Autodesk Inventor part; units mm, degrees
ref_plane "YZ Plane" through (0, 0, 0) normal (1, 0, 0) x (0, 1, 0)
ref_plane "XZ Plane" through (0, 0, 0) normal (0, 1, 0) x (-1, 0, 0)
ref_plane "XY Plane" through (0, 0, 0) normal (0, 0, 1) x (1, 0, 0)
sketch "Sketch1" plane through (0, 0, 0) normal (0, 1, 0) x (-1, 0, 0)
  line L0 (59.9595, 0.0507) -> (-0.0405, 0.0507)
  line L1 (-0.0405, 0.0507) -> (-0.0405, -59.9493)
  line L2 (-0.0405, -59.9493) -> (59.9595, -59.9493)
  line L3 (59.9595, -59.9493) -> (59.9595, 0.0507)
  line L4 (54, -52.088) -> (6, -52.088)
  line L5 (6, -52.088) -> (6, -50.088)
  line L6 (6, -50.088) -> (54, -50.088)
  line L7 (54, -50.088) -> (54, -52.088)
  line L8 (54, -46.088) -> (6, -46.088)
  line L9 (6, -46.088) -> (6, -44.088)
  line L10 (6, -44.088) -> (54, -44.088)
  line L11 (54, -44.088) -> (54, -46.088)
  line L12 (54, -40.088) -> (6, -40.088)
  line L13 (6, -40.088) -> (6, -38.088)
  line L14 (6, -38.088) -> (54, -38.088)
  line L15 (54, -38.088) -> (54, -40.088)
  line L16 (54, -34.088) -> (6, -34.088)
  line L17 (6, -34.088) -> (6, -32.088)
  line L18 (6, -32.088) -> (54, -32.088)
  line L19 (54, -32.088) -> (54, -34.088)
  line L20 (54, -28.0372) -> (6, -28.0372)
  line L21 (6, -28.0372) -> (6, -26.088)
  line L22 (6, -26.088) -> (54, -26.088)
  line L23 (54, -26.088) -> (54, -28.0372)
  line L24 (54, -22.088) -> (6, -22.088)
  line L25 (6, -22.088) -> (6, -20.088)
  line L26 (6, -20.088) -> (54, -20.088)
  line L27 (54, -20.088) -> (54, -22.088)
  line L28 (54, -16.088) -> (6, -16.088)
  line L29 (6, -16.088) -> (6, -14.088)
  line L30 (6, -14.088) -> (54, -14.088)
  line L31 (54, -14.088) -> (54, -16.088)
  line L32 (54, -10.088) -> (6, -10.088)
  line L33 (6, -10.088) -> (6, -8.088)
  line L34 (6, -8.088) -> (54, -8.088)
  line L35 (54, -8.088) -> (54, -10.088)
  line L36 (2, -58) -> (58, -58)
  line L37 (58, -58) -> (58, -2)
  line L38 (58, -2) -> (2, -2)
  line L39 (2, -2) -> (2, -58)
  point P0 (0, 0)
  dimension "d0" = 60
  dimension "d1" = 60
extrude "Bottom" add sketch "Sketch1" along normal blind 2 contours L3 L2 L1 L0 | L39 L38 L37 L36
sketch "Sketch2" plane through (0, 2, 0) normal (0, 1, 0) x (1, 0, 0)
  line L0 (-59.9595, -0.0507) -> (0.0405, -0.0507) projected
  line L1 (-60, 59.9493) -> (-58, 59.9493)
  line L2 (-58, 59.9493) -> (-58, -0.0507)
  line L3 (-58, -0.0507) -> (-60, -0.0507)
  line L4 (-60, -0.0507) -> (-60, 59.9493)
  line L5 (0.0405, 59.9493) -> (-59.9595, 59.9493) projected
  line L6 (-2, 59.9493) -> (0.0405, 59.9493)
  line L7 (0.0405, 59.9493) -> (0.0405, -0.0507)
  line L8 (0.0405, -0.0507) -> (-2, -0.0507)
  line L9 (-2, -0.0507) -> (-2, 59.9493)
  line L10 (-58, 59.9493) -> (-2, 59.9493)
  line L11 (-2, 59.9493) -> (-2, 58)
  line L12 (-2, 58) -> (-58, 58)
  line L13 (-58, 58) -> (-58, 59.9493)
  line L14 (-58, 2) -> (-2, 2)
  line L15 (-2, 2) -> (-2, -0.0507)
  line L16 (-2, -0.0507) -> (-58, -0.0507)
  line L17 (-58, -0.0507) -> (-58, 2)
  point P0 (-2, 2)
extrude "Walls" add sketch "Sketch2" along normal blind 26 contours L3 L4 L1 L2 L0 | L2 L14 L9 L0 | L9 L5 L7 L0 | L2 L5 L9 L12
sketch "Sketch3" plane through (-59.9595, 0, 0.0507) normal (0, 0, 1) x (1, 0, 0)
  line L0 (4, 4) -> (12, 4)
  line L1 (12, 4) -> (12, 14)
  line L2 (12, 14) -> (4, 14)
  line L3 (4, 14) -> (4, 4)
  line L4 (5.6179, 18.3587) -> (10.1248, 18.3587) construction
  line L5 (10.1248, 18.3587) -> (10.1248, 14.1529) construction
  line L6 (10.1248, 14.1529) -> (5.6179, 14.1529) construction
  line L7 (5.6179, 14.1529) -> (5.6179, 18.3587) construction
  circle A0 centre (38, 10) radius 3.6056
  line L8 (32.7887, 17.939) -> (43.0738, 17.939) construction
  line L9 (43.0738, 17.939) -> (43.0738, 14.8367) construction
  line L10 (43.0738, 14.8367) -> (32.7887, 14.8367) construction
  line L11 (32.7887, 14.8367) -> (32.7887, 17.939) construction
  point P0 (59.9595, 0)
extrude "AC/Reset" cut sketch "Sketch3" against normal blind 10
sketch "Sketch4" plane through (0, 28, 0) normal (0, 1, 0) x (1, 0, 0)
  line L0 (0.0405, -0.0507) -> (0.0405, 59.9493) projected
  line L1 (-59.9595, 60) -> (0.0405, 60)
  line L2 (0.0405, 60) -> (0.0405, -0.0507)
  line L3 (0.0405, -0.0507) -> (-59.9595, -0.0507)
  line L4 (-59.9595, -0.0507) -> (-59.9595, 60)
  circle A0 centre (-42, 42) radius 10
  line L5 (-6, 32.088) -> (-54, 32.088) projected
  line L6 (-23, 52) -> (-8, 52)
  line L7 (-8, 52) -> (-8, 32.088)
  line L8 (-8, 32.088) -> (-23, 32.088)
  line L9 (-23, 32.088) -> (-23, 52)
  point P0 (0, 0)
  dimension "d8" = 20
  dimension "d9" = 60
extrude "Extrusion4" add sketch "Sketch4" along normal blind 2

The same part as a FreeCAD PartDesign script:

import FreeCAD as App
import Part
import Sketcher
from FreeCAD import Vector
Q = App.Units.Quantity

doc = App.newDocument("Part")
body = doc.addObject("PartDesign::Body", "Body")

# Sketch on XZ plane
sketch1 = body.newObject("Sketcher::SketchObject", "Sketch")
sketch1.AttachmentSupport = (doc.getObject("XZ_Plane"), [""])
sketch1.MapMode = "FlatFace"
sketch1.addGeometry([
    Part.LineSegment(Vector(-60, -59.9, 0), Vector(-60, 0.1, 0)),  # 0
    Part.LineSegment(Vector(-60, 0.1, 0), Vector(0, 0.1, 0)),  # 1
    Part.LineSegment(Vector(0, 0.1, 0), Vector(0, -59.9, 0)),  # 2
    Part.LineSegment(Vector(0, -59.9, 0), Vector(-60, -59.9, 0)),  # 3
    Part.LineSegment(Vector(-54, -8.1, 0), Vector(-54, -10.1, 0)),  # 4
    Part.LineSegment(Vector(-54, -10.1, 0), Vector(-6, -10.1, 0)),  # 5
    Part.LineSegment(Vector(-6, -10.1, 0), Vector(-6, -8.1, 0)),  # 6
    Part.LineSegment(Vector(-6, -8.1, 0), Vector(-54, -8.1, 0)),  # 7
    Part.LineSegment(Vector(-54, -50.1, 0), Vector(-54, -52.1, 0)),  # 8
    Part.LineSegment(Vector(-54, -52.1, 0), Vector(-6, -52.1, 0)),  # 9
    Part.LineSegment(Vector(-6, -52.1, 0), Vector(-6, -50.1, 0)),  # 10
    Part.LineSegment(Vector(-6, -50.1, 0), Vector(-54, -50.1, 0)),  # 11
    Part.LineSegment(Vector(-54, -44.1, 0), Vector(-54, -46.1, 0)),  # 12
    Part.LineSegment(Vector(-54, -46.1, 0), Vector(-6, -46.1, 0)),  # 13
    Part.LineSegment(Vector(-6, -46.1, 0), Vector(-6, -44.1, 0)),  # 14
    Part.LineSegment(Vector(-6, -44.1, 0), Vector(-54, -44.1, 0)),  # 15
    Part.LineSegment(Vector(-54, -38.1, 0), Vector(-54, -40.1, 0)),  # 16
    Part.LineSegment(Vector(-54, -40.1, 0), Vector(-6, -40.1, 0)),  # 17
    Part.LineSegment(Vector(-6, -40.1, 0), Vector(-6, -38.1, 0)),  # 18
    Part.LineSegment(Vector(-6, -38.1, 0), Vector(-54, -38.1, 0)),  # 19
    Part.LineSegment(Vector(-54, -32.1, 0), Vector(-54, -34.1, 0)),  # 20
    Part.LineSegment(Vector(-54, -34.1, 0), Vector(-6, -34.1, 0)),  # 21
    Part.LineSegment(Vector(-6, -34.1, 0), Vector(-6, -32.1, 0)),  # 22
    Part.LineSegment(Vector(-6, -32.1, 0), Vector(-54, -32.1, 0)),  # 23
    Part.LineSegment(Vector(-54, -26.1, 0), Vector(-54, -28, 0)),  # 24
    Part.LineSegment(Vector(-54, -28, 0), Vector(-6, -28, 0)),  # 25
    Part.LineSegment(Vector(-6, -28, 0), Vector(-6, -26.1, 0)),  # 26
    Part.LineSegment(Vector(-6, -26.1, 0), Vector(-54, -26.1, 0)),  # 27
    Part.LineSegment(Vector(-54, -20.1, 0), Vector(-54, -22.1, 0)),  # 28
    Part.LineSegment(Vector(-54, -22.1, 0), Vector(-6, -22.1, 0)),  # 29
    Part.LineSegment(Vector(-6, -22.1, 0), Vector(-6, -20.1, 0)),  # 30
    Part.LineSegment(Vector(-6, -20.1, 0), Vector(-54, -20.1, 0)),  # 31
    Part.LineSegment(Vector(-54, -14.1, 0), Vector(-54, -16.1, 0)),  # 32
    Part.LineSegment(Vector(-54, -16.1, 0), Vector(-6, -16.1, 0)),  # 33
    Part.LineSegment(Vector(-6, -16.1, 0), Vector(-6, -14.1, 0)),  # 34
    Part.LineSegment(Vector(-6, -14.1, 0), Vector(-54, -14.1, 0)),  # 35
], False)
sketch1.addConstraint([
    Sketcher.Constraint("Coincident", 0, 2, 1, 1),
    Sketcher.Constraint("Coincident", 1, 2, 2, 1),
    Sketcher.Constraint("Coincident", 2, 2, 3, 1),
    Sketcher.Constraint("Coincident", 3, 2, 0, 1),
    Sketcher.Constraint("Coincident", 4, 2, 5, 1),
    Sketcher.Constraint("Coincident", 5, 2, 6, 1),
    Sketcher.Constraint("Coincident", 6, 2, 7, 1),
    Sketcher.Constraint("Coincident", 7, 2, 4, 1),
    Sketcher.Constraint("Coincident", 8, 2, 9, 1),
    Sketcher.Constraint("Coincident", 9, 2, 10, 1),
    Sketcher.Constraint("Coincident", 10, 2, 11, 1),
    Sketcher.Constraint("Coincident", 11, 2, 8, 1),
    Sketcher.Constraint("Coincident", 12, 2, 13, 1),
    Sketcher.Constraint("Coincident", 13, 2, 14, 1),
    Sketcher.Constraint("Coincident", 14, 2, 15, 1),
    Sketcher.Constraint("Coincident", 15, 2, 12, 1),
    Sketcher.Constraint("Coincident", 16, 2, 17, 1),
    Sketcher.Constraint("Coincident", 17, 2, 18, 1),
    Sketcher.Constraint("Coincident", 18, 2, 19, 1),
    Sketcher.Constraint("Coincident", 19, 2, 16, 1),
    Sketcher.Constraint("Coincident", 20, 2, 21, 1),
    Sketcher.Constraint("Coincident", 21, 2, 22, 1),
    Sketcher.Constraint("Coincident", 22, 2, 23, 1),
    Sketcher.Constraint("Coincident", 23, 2, 20, 1),
    Sketcher.Constraint("Coincident", 24, 2, 25, 1),
    Sketcher.Constraint("Coincident", 25, 2, 26, 1),
    Sketcher.Constraint("Coincident", 26, 2, 27, 1),
    Sketcher.Constraint("Coincident", 27, 2, 24, 1),
    Sketcher.Constraint("Coincident", 28, 2, 29, 1),
    Sketcher.Constraint("Coincident", 29, 2, 30, 1),
    Sketcher.Constraint("Coincident", 30, 2, 31, 1),
    Sketcher.Constraint("Coincident", 31, 2, 28, 1),
    Sketcher.Constraint("Coincident", 32, 2, 33, 1),
    Sketcher.Constraint("Coincident", 33, 2, 34, 1),
    Sketcher.Constraint("Coincident", 34, 2, 35, 1),
    Sketcher.Constraint("Coincident", 35, 2, 32, 1),
    Sketcher.Constraint("Vertical", 0),
    Sketcher.Constraint("Horizontal", 1),
    Sketcher.Constraint("Vertical", 2),
    Sketcher.Constraint("Horizontal", 3),
    Sketcher.Constraint("Vertical", 4),
    Sketcher.Constraint("Horizontal", 5),
    Sketcher.Constraint("Vertical", 6),
    Sketcher.Constraint("Horizontal", 7),
    Sketcher.Constraint("Vertical", 8),
    Sketcher.Constraint("Horizontal", 9),
    Sketcher.Constraint("Vertical", 10),
    Sketcher.Constraint("Horizontal", 11),
    Sketcher.Constraint("Vertical", 12),
    Sketcher.Constraint("Horizontal", 13),
    Sketcher.Constraint("Vertical", 14),
    Sketcher.Constraint("Horizontal", 15),
    Sketcher.Constraint("Vertical", 16),
    Sketcher.Constraint("Horizontal", 17),
    Sketcher.Constraint("Vertical", 18),
    Sketcher.Constraint("Horizontal", 19),
    Sketcher.Constraint("Vertical", 20),
    Sketcher.Constraint("Horizontal", 21),
    Sketcher.Constraint("Vertical", 22),
    Sketcher.Constraint("Horizontal", 23),
    Sketcher.Constraint("Vertical", 24),
    Sketcher.Constraint("Horizontal", 25),
    Sketcher.Constraint("Vertical", 26),
    Sketcher.Constraint("Horizontal", 27),
    Sketcher.Constraint("Vertical", 28),
    Sketcher.Constraint("Horizontal", 29),
    Sketcher.Constraint("Vertical", 30),
    Sketcher.Constraint("Horizontal", 31),
    Sketcher.Constraint("Vertical", 32),
    Sketcher.Constraint("Horizontal", 33),
    Sketcher.Constraint("Vertical", 34),
    Sketcher.Constraint("Horizontal", 35),
    Sketcher.Constraint("Vertical", 7, 2, 8, 2),
    Sketcher.Constraint("Vertical", 6, 2, 9, 2),
    Sketcher.Constraint("Vertical", 11, 2, 12, 2),
    Sketcher.Constraint("Vertical", 10, 2, 13, 2),
    Sketcher.Constraint("Vertical", 15, 2, 16, 2),
    Sketcher.Constraint("Vertical", 14, 2, 17, 2),
    Sketcher.Constraint("Vertical", 19, 2, 20, 2),
    Sketcher.Constraint("Vertical", 18, 2, 21, 2),
    Sketcher.Constraint("Vertical", 23, 2, 24, 2),
    Sketcher.Constraint("Vertical", 22, 2, 25, 2),
    Sketcher.Constraint("Vertical", 27, 2, 28, 2),
    Sketcher.Constraint("Vertical", 26, 2, 29, 2),
    Sketcher.Constraint("Vertical", 31, 2, 32, 2),
    Sketcher.Constraint("Vertical", 30, 2, 33, 2),
    Sketcher.Constraint("Equal", 3, 0),
    Sketcher.Constraint("Equal", 6, 8),
    Sketcher.Constraint("Equal", 10, 12),
    Sketcher.Constraint("Equal", 14, 16),
    Sketcher.Constraint("Equal", 18, 20),
    Sketcher.Constraint("Equal", 22, 28),
    Sketcher.Constraint("Equal", 30, 32),
    Sketcher.Constraint("DistanceX", 1, 1, 1, 2, Q("60 mm")),
    Sketcher.Constraint("DistanceX", 5, 1, 5, 2, Q("48 mm")),
    Sketcher.Constraint("DistanceY", 4, 2, 4, 1, Q("2 mm")),
    Sketcher.Constraint("DistanceX", 4, 2, -1, 1, Q("54 mm")),
    Sketcher.Constraint("DistanceY", 8, 2, 4, 2, Q("42 mm")),
    Sketcher.Constraint("DistanceY", 11, 2, 12, 2, Q("4 mm")),
    Sketcher.Constraint("DistanceY", 15, 2, 16, 2, Q("4 mm")),
    Sketcher.Constraint("DistanceY", 19, 2, 20, 2, Q("4 mm")),
    Sketcher.Constraint("DistanceY", 22, 2, 26, 2, Q("6 mm")),
    Sketcher.Constraint("DistanceY", 27, 2, 28, 2, Q("4 mm")),
    Sketcher.Constraint("DistanceY", 31, 2, 32, 2, Q("4 mm")),
    Sketcher.Constraint("DistanceY", 24, 2, 24, 1, Q("1.9492 mm")),
    Sketcher.Constraint("DistanceY", 4, 2, -1, 1, Q("10.088 mm")),
    Sketcher.Constraint("DistanceX", 0, 2, -1, 1, Q("59.9595 mm")),
    Sketcher.Constraint("DistanceY", -1, 1, 0, 2, Q("0.0507 mm")),
])
pad1 = body.newObject("PartDesign::Pad", "Pad")
pad1.Profile = sketch1
pad1.Length = 2
pad1.Reversed = True

# Sketch on XZ plane
sketch2 = body.newObject("Sketcher::SketchObject", "Sketch001")
sketch2.AttachmentSupport = (doc.getObject("XZ_Plane"), [""])
sketch2.MapMode = "FlatFace"
sketch2.AttachmentOffset = App.Placement(Vector(0, 0, -2), App.Rotation())
sketch2.addGeometry([
    Part.LineSegment(Vector(-60, 0, 0), Vector(0, 0, 0)),  # 0
    Part.LineSegment(Vector(0, 0, 0), Vector(0, -60, 0)),  # 1
    Part.LineSegment(Vector(0, -60, 0), Vector(-60, -60, 0)),  # 2
    Part.LineSegment(Vector(-60, -60, 0), Vector(-60, 0, 0)),  # 3
    Part.LineSegment(Vector(-58, -2, 0), Vector(-58, -58, 0)),  # 4
    Part.LineSegment(Vector(-58, -58, 0), Vector(-2, -58, 0)),  # 5
    Part.LineSegment(Vector(-2, -58, 0), Vector(-2, -2, 0)),  # 6
    Part.LineSegment(Vector(-2, -2, 0), Vector(-58, -2, 0)),  # 7
], False)
sketch2.addConstraint([
    Sketcher.Constraint("Coincident", 0, 2, 1, 1),
    Sketcher.Constraint("Coincident", 1, 2, 2, 1),
    Sketcher.Constraint("Coincident", 2, 2, 3, 1),
    Sketcher.Constraint("Coincident", 3, 2, 0, 1),
    Sketcher.Constraint("Coincident", 4, 2, 5, 1),
    Sketcher.Constraint("Coincident", 5, 2, 6, 1),
    Sketcher.Constraint("Coincident", 6, 2, 7, 1),
    Sketcher.Constraint("Coincident", 7, 2, 4, 1),
    Sketcher.Constraint("Horizontal", 0),
    Sketcher.Constraint("Vertical", 1),
    Sketcher.Constraint("Horizontal", 2),
    Sketcher.Constraint("Vertical", 3),
    Sketcher.Constraint("Vertical", 4),
    Sketcher.Constraint("Horizontal", 5),
    Sketcher.Constraint("Vertical", 6),
    Sketcher.Constraint("Horizontal", 7),
    Sketcher.Constraint("Equal", 7, 4),
    Sketcher.Constraint("DistanceX", 5, 1, 5, 2, Q("56 mm")),
    Sketcher.Constraint("DistanceY", 1, 2, 1, 1, Q("60 mm")),
    Sketcher.Constraint("DistanceX", 2, 2, -1, 1, Q("60 mm")),
    Sketcher.Constraint("DistanceX", 4, 2, -1, 1, Q("58 mm")),
    Sketcher.Constraint("DistanceY", 4, 2, -1, 1, Q("58 mm")),
    Sketcher.Constraint("DistanceX", 0, 1, 0, 2, Q("60.0405 mm")),
    Sketcher.Constraint("DistanceY", -1, 1, 0, 2, Q("0.0507 mm")),
])
pad2 = body.newObject("PartDesign::Pad", "Pad001")
pad2.Profile = sketch2
pad2.Length = 26
pad2.Reversed = True

# Sketch on XY plane
sketch3 = body.newObject("Sketcher::SketchObject", "Sketch002")
sketch3.AttachmentSupport = (doc.getObject("XY_Plane"), [""])
sketch3.MapMode = "FlatFace"
sketch3.AttachmentOffset = App.Placement(Vector(0, 0, 0.0507), App.Rotation())
sketch3.addGeometry([
    Part.LineSegment(Vector(-56, 14, 0), Vector(-56, 4, 0)),  # 0
    Part.LineSegment(Vector(-56, 4, 0), Vector(-48, 4, 0)),  # 1
    Part.LineSegment(Vector(-48, 4, 0), Vector(-48, 14, 0)),  # 2
    Part.LineSegment(Vector(-48, 14, 0), Vector(-56, 14, 0)),  # 3
    Part.Circle(Vector(-22, 10, 0), Vector(0, 0, 1), 3.6),  # 4
], False)
sketch3.addConstraint([
    Sketcher.Constraint("Coincident", 0, 2, 1, 1),
    Sketcher.Constraint("Coincident", 1, 2, 2, 1),
    Sketcher.Constraint("Coincident", 2, 2, 3, 1),
    Sketcher.Constraint("Coincident", 3, 2, 0, 1),
    Sketcher.Constraint("Vertical", 0),
    Sketcher.Constraint("Horizontal", 1),
    Sketcher.Constraint("Vertical", 2),
    Sketcher.Constraint("Horizontal", 3),
    Sketcher.Constraint("DistanceX", 1, 1, 1, 2, Q("8 mm")),
    Sketcher.Constraint("DistanceY", 0, 2, 0, 1, Q("10 mm")),
    Sketcher.Constraint("DistanceY", -1, 1, 4, 3, Q("10 mm")),
    Sketcher.Constraint("DistanceY", -1, 1, 0, 2, Q("4 mm")),
    Sketcher.Constraint("DistanceX", 0, 2, 4, 3, Q("34 mm")),
    Sketcher.Constraint("Diameter", 4, Q("7.2112 mm")),
    Sketcher.Constraint("DistanceX", 4, 3, -1, 1, Q("21.9595 mm")),
])
pocket1 = body.newObject("PartDesign::Pocket", "Pocket")
pocket1.Profile = sketch3
pocket1.Length = 10

# Sketch on XZ plane
sketch4 = body.newObject("Sketcher::SketchObject", "Sketch003")
sketch4.AttachmentSupport = (doc.getObject("XZ_Plane"), [""])
sketch4.MapMode = "FlatFace"
sketch4.AttachmentOffset = App.Placement(Vector(0, 0, -28), App.Rotation())
sketch4.addGeometry([
    Part.LineSegment(Vector(-60, 0, 0), Vector(0, 0, 0)),  # 0
    Part.LineSegment(Vector(0, 0, 0), Vector(0, -60, 0)),  # 1
    Part.LineSegment(Vector(0, -60, 0), Vector(-60, -60, 0)),  # 2
    Part.LineSegment(Vector(-60, -60, 0), Vector(-60, 0, 0)),  # 3
    Part.Circle(Vector(-42, -42, 0), Vector(0, 0, 1), 10),  # 4
    Part.LineSegment(Vector(-8, -32, 0), Vector(-23, -32, 0)),  # 5
    Part.LineSegment(Vector(-23, -32, 0), Vector(-23, -52, 0)),  # 6
    Part.LineSegment(Vector(-23, -52, 0), Vector(-8, -52, 0)),  # 7
    Part.LineSegment(Vector(-8, -52, 0), Vector(-8, -32, 0)),  # 8
], False)
sketch4.addConstraint([
    Sketcher.Constraint("Coincident", 0, 2, 1, 1),
    Sketcher.Constraint("Coincident", 1, 2, 2, 1),
    Sketcher.Constraint("Coincident", 2, 2, 3, 1),
    Sketcher.Constraint("Coincident", 3, 2, 0, 1),
    Sketcher.Constraint("Coincident", 5, 2, 6, 1),
    Sketcher.Constraint("Coincident", 6, 2, 7, 1),
    Sketcher.Constraint("Coincident", 7, 2, 8, 1),
    Sketcher.Constraint("Coincident", 8, 2, 5, 1),
    Sketcher.Constraint("Horizontal", 0),
    Sketcher.Constraint("Vertical", 1),
    Sketcher.Constraint("Horizontal", 2),
    Sketcher.Constraint("Vertical", 3),
    Sketcher.Constraint("Horizontal", 5),
    Sketcher.Constraint("Vertical", 6),
    Sketcher.Constraint("Horizontal", 7),
    Sketcher.Constraint("Vertical", 8),
    Sketcher.Constraint("Diameter", 4, Q("20 mm")),
    Sketcher.Constraint("DistanceX", 0, 1, 0, 2, Q("60 mm")),
    Sketcher.Constraint("DistanceY", 1, 2, -1, 1, Q("60 mm")),
    Sketcher.Constraint("DistanceX", 5, 2, 5, 1, Q("15 mm")),
    Sketcher.Constraint("DistanceX", 4, 3, -1, 1, Q("42 mm")),
    Sketcher.Constraint("DistanceY", 4, 3, -1, 1, Q("42 mm")),
    Sketcher.Constraint("DistanceX", 5, 2, -1, 1, Q("23 mm")),
    Sketcher.Constraint("DistanceY", 6, 2, -1, 1, Q("52 mm")),
    Sketcher.Constraint("DistanceY", 6, 2, 6, 1, Q("19.912 mm")),
    Sketcher.Constraint("DistanceY", 1, 2, 1, 1, Q("60.0507 mm")),
    Sketcher.Constraint("DistanceX", -1, 1, 0, 2, Q("0.0405 mm")),
])
pad3 = body.newObject("PartDesign::Pad", "Pad002")
pad3.Profile = sketch4
pad3.Length = 2
pad3.Reversed = True

doc.recompute()
